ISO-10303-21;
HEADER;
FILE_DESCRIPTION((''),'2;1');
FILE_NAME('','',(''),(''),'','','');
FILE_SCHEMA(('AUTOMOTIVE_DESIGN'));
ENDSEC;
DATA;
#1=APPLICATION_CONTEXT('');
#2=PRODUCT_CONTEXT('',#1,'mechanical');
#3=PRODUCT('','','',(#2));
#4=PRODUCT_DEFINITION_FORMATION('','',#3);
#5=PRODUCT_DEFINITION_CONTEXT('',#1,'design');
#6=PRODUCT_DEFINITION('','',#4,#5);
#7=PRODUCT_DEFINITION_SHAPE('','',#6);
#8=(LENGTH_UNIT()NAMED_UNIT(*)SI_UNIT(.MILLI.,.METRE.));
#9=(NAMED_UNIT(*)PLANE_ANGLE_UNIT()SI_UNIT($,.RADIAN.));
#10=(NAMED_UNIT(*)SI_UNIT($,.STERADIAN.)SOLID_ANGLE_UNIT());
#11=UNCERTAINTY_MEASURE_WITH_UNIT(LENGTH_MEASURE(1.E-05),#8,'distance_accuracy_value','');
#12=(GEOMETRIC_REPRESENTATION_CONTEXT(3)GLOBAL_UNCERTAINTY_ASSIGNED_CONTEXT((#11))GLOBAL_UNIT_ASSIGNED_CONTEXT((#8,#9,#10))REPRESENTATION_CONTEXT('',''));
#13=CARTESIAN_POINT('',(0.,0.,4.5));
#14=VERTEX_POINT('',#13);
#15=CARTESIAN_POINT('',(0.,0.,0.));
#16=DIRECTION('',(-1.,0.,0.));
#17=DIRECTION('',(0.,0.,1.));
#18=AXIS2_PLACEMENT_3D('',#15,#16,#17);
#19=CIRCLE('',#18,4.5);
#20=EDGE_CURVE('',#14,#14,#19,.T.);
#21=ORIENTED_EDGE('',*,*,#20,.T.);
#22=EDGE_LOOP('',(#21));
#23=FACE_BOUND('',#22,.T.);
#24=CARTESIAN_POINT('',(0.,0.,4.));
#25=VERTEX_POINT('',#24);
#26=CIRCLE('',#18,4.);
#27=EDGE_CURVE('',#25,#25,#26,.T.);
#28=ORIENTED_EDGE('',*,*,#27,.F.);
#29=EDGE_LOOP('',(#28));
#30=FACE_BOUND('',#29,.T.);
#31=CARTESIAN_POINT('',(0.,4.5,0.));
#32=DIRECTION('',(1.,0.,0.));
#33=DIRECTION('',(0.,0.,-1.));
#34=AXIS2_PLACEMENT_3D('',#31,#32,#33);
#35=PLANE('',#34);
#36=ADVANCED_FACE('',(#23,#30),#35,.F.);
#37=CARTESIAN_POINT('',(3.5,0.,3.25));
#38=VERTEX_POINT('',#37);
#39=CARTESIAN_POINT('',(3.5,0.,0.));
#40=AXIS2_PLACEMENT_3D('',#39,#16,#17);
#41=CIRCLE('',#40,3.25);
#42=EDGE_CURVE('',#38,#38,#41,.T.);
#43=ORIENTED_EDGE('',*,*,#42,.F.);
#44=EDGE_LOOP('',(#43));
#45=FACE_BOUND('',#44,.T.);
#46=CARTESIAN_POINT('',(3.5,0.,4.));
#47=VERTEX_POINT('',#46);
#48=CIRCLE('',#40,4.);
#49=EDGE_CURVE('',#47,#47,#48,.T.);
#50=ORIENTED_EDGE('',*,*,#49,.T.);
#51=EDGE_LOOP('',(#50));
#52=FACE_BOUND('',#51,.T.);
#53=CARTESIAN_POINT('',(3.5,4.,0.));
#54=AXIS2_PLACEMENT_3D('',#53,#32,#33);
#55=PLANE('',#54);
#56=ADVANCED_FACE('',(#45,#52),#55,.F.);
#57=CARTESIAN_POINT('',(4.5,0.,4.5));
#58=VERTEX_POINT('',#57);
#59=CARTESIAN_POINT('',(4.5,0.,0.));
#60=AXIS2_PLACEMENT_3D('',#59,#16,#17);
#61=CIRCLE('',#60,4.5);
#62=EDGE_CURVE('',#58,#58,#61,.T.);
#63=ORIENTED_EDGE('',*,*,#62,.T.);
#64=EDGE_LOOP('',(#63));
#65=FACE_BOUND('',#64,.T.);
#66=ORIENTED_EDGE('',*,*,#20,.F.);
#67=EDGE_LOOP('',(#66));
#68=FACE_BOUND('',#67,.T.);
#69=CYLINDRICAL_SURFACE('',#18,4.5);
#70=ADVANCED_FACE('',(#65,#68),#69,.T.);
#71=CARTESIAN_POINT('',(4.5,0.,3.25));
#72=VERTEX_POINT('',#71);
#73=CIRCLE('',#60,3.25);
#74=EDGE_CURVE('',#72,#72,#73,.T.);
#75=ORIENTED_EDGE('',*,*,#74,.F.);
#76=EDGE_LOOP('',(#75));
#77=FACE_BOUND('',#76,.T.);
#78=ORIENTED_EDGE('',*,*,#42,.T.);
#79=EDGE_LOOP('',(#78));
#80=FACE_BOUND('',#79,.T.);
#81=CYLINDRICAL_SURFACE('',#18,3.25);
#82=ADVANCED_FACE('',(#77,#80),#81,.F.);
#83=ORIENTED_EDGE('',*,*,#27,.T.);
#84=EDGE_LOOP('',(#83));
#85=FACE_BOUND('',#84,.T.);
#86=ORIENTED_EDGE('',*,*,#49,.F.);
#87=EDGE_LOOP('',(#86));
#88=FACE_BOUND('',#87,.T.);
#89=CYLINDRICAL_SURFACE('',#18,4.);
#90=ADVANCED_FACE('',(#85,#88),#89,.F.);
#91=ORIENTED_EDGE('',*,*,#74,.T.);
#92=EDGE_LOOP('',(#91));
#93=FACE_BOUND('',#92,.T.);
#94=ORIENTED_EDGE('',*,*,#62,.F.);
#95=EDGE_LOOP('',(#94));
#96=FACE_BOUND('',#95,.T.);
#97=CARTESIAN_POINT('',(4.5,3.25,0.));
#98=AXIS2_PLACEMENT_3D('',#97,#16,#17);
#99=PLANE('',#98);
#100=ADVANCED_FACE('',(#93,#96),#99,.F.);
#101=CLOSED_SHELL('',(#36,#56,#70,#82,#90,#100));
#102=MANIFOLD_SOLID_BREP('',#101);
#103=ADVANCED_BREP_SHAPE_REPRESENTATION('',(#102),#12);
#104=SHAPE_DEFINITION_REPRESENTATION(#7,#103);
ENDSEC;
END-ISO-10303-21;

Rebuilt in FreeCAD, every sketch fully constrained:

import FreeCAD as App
import Part
import Sketcher
from FreeCAD import Vector
Q = App.Units.Quantity

doc = App.newDocument("Part")
body = doc.addObject("PartDesign::Body", "Body")

# Sketch on XY plane
sketch1 = body.newObject("Sketcher::SketchObject", "Sketch")
sketch1.AttachmentSupport = (doc.getObject("XY_Plane"), [""])
sketch1.MapMode = "FlatFace"
sketch1.addGeometry([
    Part.LineSegment(Vector(0, 4, 0), Vector(3.5, 4, 0)),  # 0
    Part.LineSegment(Vector(3.5, 4, 0), Vector(3.5, 3.2, 0)),  # 1
    Part.LineSegment(Vector(3.5, 3.2, 0), Vector(4.5, 3.2, 0)),  # 2
    Part.LineSegment(Vector(4.5, 3.2, 0), Vector(4.5, 4.5, 0)),  # 3
    Part.LineSegment(Vector(4.5, 4.5, 0), Vector(0, 4.5, 0)),  # 4
    Part.LineSegment(Vector(0, 4.5, 0), Vector(0, 4, 0)),  # 5
], False)
sketch1.addConstraint([
    Sketcher.Constraint("Coincident", 0, 2, 1, 1),
    Sketcher.Constraint("Coincident", 1, 2, 2, 1),
    Sketcher.Constraint("Coincident", 2, 2, 3, 1),
    Sketcher.Constraint("Coincident", 3, 2, 4, 1),
    Sketcher.Constraint("Coincident", 4, 2, 5, 1),
    Sketcher.Constraint("Coincident", 5, 2, 0, 1),
    Sketcher.Constraint("Horizontal", 0),
    Sketcher.Constraint("Vertical", 1),
    Sketcher.Constraint("Horizontal", 2),
    Sketcher.Constraint("Vertical", 3),
    Sketcher.Constraint("Horizontal", 4),
    Sketcher.Constraint("Vertical", 5),
    Sketcher.Constraint("PointOnObject", 4, 2, -2),
    Sketcher.Constraint("DistanceX", 2, 1, 2, 2, Q("1 mm")),
    Sketcher.Constraint("DistanceX", 0, 1, 0, 2, Q("3.5 mm")),
    Sketcher.Constraint("DistanceY", 5, 2, 5, 1, Q("0.5 mm")),
    Sketcher.Constraint("DistanceY", -1, 1, 0, 2, Q("4 mm")),
    Sketcher.Constraint("DistanceY", 1, 2, 1, 1, Q("0.75 mm")),
])
revolution = body.newObject("PartDesign::Revolution", "Revolution")
revolution.Profile = sketch1
revolution.ReferenceAxis = (sketch1, ["H_Axis"])
revolution.Angle = 360

doc.recompute()
